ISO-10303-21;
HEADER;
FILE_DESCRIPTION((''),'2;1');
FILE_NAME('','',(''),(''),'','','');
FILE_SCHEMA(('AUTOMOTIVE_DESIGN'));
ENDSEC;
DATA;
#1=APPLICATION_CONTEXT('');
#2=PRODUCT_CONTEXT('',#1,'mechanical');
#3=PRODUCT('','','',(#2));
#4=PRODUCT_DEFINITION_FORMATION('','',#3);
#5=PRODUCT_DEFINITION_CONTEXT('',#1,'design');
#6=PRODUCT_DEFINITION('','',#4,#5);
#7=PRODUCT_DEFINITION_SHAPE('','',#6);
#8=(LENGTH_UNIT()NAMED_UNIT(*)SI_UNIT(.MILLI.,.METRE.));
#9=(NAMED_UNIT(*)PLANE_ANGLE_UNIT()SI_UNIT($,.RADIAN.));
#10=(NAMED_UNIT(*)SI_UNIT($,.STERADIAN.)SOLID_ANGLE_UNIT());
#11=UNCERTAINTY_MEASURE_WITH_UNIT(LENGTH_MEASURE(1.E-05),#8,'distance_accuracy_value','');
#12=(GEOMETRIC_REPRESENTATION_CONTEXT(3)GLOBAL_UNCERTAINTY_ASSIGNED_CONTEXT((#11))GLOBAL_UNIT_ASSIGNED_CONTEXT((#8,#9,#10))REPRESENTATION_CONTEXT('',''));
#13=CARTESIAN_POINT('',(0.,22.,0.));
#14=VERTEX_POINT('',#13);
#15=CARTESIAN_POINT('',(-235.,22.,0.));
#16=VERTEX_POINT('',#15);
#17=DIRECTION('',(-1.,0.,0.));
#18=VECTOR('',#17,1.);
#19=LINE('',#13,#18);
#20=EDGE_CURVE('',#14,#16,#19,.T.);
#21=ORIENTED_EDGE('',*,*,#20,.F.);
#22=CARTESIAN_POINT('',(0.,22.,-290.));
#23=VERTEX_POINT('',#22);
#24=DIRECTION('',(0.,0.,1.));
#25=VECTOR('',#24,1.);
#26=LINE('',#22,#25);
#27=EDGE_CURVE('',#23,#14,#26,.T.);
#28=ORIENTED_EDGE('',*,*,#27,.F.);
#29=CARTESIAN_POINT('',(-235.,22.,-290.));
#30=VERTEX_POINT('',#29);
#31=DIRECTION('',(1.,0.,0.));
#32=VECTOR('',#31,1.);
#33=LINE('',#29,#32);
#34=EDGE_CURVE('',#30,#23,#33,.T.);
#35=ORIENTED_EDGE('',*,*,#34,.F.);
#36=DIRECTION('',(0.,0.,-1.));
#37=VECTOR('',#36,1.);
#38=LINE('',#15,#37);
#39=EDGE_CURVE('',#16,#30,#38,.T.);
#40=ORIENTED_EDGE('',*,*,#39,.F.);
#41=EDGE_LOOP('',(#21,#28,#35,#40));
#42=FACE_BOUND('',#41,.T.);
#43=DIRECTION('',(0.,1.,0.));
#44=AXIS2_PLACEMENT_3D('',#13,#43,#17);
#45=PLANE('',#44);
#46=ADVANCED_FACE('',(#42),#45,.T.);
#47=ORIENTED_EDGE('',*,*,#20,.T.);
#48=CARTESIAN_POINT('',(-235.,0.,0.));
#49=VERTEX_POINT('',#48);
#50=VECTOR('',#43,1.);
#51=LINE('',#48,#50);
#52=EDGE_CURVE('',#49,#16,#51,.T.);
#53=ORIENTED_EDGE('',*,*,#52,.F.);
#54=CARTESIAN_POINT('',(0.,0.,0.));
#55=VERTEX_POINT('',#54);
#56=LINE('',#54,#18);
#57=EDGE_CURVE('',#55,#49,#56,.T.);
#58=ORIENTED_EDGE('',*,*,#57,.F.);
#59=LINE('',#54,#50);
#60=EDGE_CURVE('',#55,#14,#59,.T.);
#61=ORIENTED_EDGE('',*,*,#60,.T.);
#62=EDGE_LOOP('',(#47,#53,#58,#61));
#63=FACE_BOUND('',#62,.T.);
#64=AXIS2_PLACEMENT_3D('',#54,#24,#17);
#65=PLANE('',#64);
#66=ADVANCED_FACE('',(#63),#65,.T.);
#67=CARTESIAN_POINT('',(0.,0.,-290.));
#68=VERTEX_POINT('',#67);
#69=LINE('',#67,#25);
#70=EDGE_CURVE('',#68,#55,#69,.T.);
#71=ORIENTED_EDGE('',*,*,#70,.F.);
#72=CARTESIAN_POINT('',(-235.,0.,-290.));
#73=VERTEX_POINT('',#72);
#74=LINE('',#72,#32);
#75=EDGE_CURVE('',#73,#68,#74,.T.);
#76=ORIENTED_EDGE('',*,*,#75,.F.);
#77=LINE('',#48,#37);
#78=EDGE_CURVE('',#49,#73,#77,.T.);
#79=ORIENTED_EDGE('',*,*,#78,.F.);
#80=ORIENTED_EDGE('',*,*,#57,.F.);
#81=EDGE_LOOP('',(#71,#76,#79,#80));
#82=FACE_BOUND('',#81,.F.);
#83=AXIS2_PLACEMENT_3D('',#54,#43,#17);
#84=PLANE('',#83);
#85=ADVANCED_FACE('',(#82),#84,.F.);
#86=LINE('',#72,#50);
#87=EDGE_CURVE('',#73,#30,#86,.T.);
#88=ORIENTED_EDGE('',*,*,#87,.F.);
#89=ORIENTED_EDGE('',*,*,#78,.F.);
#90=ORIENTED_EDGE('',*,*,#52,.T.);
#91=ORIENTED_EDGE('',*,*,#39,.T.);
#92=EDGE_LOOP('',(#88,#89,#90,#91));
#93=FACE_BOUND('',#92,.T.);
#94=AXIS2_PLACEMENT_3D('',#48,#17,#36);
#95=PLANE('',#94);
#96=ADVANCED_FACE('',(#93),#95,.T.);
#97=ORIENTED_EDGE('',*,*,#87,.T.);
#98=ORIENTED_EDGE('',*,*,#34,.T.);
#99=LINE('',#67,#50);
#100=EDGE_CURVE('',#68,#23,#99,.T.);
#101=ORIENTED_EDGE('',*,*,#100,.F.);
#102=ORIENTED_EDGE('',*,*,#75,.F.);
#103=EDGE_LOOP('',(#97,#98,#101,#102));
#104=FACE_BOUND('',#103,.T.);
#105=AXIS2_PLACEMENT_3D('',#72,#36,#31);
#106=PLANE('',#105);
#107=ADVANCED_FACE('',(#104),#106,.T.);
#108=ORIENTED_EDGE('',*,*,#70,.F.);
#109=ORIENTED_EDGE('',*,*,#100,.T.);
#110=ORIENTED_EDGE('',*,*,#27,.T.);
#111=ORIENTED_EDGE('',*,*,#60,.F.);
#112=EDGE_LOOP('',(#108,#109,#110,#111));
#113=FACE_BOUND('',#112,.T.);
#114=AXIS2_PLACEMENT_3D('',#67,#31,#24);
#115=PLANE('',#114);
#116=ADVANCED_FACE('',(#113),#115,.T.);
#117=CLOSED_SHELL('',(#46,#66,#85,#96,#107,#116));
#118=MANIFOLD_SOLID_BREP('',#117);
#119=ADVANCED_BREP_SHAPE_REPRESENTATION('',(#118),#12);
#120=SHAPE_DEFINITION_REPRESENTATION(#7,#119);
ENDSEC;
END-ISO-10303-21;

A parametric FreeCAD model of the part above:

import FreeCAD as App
import Part
import Sketcher

V = App.Vector
Q = App.Units.Quantity

doc = App.newDocument("Part")
body = doc.addObject("PartDesign::Body", "Body")

# Sketch on XZ plane
sketch1 = body.newObject("Sketcher::SketchObject", "Sketch")
sketch1.AttachmentSupport = (doc.getObject("XZ_Plane"), [""])
sketch1.MapMode = "FlatFace"
sketch1.addGeometry(Part.LineSegment(V(-235, 0, 0), V(0, 0, 0)), False)
sketch1.addGeometry(Part.LineSegment(V(0, 0, 0), V(0, -290, 0)), False)
sketch1.addGeometry(Part.LineSegment(V(0, -290, 0), V(-235, -290, 0)), False)
sketch1.addGeometry(Part.LineSegment(V(-235, -290, 0), V(-235, 0, 0)), False)
sketch1.addConstraint(Sketcher.Constraint("Coincident", 0, 2, 1, 1))
sketch1.addConstraint(Sketcher.Constraint("Coincident", 1, 2, 2, 1))
sketch1.addConstraint(Sketcher.Constraint("Coincident", 2, 2, 3, 1))
sketch1.addConstraint(Sketcher.Constraint("Coincident", 3, 2, 0, 1))
sketch1.addConstraint(Sketcher.Constraint("Horizontal", 0))
sketch1.addConstraint(Sketcher.Constraint("Vertical", 1))
sketch1.addConstraint(Sketcher.Constraint("Horizontal", 2))
sketch1.addConstraint(Sketcher.Constraint("Vertical", 3))
sketch1.addConstraint(Sketcher.Constraint("Coincident", 0, 2, -1, 1))
sketch1.addConstraint(Sketcher.Constraint("DistanceX", 0, 1, 0, 2, Q("235 mm")))
sketch1.addConstraint(Sketcher.Constraint("DistanceY", 1, 2, 1, 1, Q("290 mm")))
pad1 = body.newObject("PartDesign::Pad", "Pad")
pad1.Profile = sketch1
pad1.Length = 22
pad1.Reversed = True

doc.recompute()
